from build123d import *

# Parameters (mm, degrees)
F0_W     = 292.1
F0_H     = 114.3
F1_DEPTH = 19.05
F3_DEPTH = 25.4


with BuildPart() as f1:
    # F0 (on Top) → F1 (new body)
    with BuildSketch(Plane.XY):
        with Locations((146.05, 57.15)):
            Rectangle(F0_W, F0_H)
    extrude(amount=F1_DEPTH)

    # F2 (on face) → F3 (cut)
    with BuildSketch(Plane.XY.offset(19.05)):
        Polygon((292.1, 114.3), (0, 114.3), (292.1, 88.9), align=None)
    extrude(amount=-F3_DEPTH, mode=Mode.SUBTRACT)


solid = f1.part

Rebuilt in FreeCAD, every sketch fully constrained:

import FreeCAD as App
import Part
import Sketcher

V = App.Vector
Q = App.Units.Quantity


def add_polygon(sketch, points):
    """Adds a closed chain of lines whose ends are joined by coincident constraints."""
    first, n = sketch.GeometryCount, len(points)
    for a, b in zip(points, points[1:] + points[:1]):
        sketch.addGeometry(Part.LineSegment(App.Vector(*a, 0), App.Vector(*b, 0)), False)
    for i in range(n):
        sketch.addConstraint(Sketcher.Constraint("Coincident", first + i, 2, first + (i + 1) % n, 1))

doc = App.newDocument("Part")
body = doc.addObject("PartDesign::Body", "Body")

# Sketch on XY plane
sketch1 = body.newObject("Sketcher::SketchObject", "Sketch")
sketch1.AttachmentSupport = (doc.getObject("XY_Plane"), [""])
sketch1.MapMode = "FlatFace"
add_polygon(sketch1, [(0, 114), (0, 0), (292, 0), (292, 114)])  # lines 0-3
sketch1.addConstraint(Sketcher.Constraint("Vertical", 0))
sketch1.addConstraint(Sketcher.Constraint("Horizontal", 1))
sketch1.addConstraint(Sketcher.Constraint("Vertical", 2))
sketch1.addConstraint(Sketcher.Constraint("Horizontal", 3))
sketch1.addConstraint(Sketcher.Constraint("Coincident", 0, 2, -1, 1))
sketch1.addConstraint(Sketcher.Constraint("DistanceX", 1, 1, 1, 2, Q("11.5 in")))
sketch1.addConstraint(Sketcher.Constraint("DistanceY", 0, 2, 0, 1, Q("4.5 in")))
pad1 = body.newObject("PartDesign::Pad", "Pad")
pad1.Profile = sketch1
pad1.Length = Q("0.75 in")

# Sketch on XY plane
sketch2 = body.newObject("Sketcher::SketchObject", "Sketch001")
sketch2.AttachmentSupport = (doc.getObject("XY_Plane"), [""])
sketch2.MapMode = "FlatFace"
sketch2.AttachmentOffset = App.Placement(V(0, 0, 0.75 * 25.4), App.Rotation())
add_polygon(sketch2, [(292, 114), (0, 114), (292, 89)])  # lines 0-2
sketch2.addConstraint(Sketcher.Constraint("Horizontal", 0))
sketch2.addConstraint(Sketcher.Constraint("Vertical", 2))
sketch2.addConstraint(Sketcher.Constraint("PointOnObject", 0, 2, -2))
sketch2.addConstraint(Sketcher.Constraint("DistanceY", 2, 1, 2, 2, Q("1 in")))
sketch2.addConstraint(Sketcher.Constraint("DistanceX", 0, 2, 0, 1, Q("11.5 in")))
sketch2.addConstraint(Sketcher.Constraint("DistanceY", -1, 1, 0, 2, Q("4.5 in")))
pocket1 = body.newObject("PartDesign::Pocket", "Pocket")
pocket1.Profile = sketch2
pocket1.Length = Q("1 in")

doc.recompute()
